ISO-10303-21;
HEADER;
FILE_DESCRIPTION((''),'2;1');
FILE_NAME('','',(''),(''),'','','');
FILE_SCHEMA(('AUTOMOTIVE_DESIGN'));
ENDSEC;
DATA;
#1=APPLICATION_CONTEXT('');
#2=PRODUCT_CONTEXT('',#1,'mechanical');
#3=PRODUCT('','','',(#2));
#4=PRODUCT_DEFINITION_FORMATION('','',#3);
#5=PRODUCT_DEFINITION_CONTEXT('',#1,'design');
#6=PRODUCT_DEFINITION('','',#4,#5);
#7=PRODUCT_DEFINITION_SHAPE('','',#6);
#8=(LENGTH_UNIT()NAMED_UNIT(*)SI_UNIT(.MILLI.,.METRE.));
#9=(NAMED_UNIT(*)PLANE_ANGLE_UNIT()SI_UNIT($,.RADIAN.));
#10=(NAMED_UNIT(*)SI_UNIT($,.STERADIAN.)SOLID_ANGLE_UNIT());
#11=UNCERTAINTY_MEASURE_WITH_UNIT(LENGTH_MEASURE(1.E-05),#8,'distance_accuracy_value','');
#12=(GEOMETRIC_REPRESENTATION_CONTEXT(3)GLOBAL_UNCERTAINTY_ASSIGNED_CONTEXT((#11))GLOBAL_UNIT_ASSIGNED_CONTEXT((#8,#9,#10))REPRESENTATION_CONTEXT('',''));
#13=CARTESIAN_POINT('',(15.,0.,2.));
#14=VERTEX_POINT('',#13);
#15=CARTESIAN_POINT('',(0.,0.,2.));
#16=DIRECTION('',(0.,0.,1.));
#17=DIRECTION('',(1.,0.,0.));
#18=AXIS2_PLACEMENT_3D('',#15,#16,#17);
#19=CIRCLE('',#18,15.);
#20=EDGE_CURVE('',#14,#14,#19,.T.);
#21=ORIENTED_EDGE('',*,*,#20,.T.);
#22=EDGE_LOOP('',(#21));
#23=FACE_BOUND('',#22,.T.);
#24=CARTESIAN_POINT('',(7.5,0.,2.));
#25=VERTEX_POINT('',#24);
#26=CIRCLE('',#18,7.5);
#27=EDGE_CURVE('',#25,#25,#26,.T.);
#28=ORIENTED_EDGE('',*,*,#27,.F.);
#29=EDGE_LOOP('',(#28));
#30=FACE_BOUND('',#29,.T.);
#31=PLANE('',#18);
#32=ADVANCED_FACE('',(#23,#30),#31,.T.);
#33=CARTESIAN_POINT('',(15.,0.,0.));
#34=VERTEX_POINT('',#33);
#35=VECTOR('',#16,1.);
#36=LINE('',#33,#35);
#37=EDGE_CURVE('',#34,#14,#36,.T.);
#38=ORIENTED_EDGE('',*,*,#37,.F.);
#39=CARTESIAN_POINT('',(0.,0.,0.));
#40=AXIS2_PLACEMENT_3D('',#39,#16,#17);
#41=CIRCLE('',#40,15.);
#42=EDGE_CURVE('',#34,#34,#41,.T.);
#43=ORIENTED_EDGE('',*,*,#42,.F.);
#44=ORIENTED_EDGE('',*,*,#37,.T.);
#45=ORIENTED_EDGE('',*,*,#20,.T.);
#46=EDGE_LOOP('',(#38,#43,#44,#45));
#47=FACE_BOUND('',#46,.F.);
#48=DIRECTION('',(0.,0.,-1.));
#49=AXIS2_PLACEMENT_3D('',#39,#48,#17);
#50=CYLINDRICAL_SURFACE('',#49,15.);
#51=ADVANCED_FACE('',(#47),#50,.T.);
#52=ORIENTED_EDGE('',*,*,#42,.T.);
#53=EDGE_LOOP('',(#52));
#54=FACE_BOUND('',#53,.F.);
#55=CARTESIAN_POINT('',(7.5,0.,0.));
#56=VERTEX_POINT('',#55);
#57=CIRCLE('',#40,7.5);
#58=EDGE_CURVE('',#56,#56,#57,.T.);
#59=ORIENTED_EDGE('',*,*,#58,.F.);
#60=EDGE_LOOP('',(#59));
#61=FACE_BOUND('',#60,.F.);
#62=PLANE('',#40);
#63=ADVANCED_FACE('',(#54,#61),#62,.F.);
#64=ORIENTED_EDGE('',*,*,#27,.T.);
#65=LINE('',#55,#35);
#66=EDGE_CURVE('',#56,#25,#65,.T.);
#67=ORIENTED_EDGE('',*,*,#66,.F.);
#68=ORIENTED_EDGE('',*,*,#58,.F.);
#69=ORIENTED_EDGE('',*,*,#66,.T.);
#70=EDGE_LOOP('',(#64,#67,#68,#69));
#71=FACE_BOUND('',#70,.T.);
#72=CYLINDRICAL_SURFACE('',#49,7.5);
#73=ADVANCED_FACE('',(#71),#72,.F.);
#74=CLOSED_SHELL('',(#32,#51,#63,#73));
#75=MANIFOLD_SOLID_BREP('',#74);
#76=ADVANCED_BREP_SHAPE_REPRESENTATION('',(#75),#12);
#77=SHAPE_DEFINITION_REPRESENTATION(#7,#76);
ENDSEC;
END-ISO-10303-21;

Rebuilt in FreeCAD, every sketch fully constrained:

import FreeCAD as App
import Part
import Sketcher

V = App.Vector

doc = App.newDocument("Part")
params = doc.addObject("Spreadsheet::Sheet", "Params")
for row, (alias, value) in enumerate([
    ("sketch1_diameter", "30 mm"),
    ("sketch1_diameter2", "15 mm"),
    ("pad1_length", "2 mm"),
], start=1):
    params.set(f"A{row}", alias)
    params.set(f"B{row}", "=" + value)
    params.setAlias(f"B{row}", alias)

body = doc.addObject("PartDesign::Body", "Body")

# Sketch on XY plane
sketch1 = body.newObject("Sketcher::SketchObject", "Sketch")
sketch1.AttachmentSupport = (doc.getObject("XY_Plane"), [""])
sketch1.MapMode = "FlatFace"
sketch1.addGeometry([
    Part.Circle(V(0, 0, 0), V(0, 0, 1), 15),
    Part.Circle(V(0, 0, 0), V(0, 0, 1), 7.5),
], False)
sketch1.addConstraint([
    Sketcher.Constraint("Coincident", 0, 3, -1, 1),
    Sketcher.Constraint("Coincident", 1, 3, -1, 1),
    Sketcher.Constraint("Diameter", 0, 30.0),
    Sketcher.Constraint("Diameter", 1, 15.0),
])
sketch1.setExpression("Constraints[2]", "Params.sketch1_diameter")
sketch1.setExpression("Constraints[3]", "Params.sketch1_diameter2")
pad1 = body.newObject("PartDesign::Pad", "Pad")
pad1.Profile = sketch1
pad1.setExpression("Length", "Params.pad1_length")

doc.recompute()
